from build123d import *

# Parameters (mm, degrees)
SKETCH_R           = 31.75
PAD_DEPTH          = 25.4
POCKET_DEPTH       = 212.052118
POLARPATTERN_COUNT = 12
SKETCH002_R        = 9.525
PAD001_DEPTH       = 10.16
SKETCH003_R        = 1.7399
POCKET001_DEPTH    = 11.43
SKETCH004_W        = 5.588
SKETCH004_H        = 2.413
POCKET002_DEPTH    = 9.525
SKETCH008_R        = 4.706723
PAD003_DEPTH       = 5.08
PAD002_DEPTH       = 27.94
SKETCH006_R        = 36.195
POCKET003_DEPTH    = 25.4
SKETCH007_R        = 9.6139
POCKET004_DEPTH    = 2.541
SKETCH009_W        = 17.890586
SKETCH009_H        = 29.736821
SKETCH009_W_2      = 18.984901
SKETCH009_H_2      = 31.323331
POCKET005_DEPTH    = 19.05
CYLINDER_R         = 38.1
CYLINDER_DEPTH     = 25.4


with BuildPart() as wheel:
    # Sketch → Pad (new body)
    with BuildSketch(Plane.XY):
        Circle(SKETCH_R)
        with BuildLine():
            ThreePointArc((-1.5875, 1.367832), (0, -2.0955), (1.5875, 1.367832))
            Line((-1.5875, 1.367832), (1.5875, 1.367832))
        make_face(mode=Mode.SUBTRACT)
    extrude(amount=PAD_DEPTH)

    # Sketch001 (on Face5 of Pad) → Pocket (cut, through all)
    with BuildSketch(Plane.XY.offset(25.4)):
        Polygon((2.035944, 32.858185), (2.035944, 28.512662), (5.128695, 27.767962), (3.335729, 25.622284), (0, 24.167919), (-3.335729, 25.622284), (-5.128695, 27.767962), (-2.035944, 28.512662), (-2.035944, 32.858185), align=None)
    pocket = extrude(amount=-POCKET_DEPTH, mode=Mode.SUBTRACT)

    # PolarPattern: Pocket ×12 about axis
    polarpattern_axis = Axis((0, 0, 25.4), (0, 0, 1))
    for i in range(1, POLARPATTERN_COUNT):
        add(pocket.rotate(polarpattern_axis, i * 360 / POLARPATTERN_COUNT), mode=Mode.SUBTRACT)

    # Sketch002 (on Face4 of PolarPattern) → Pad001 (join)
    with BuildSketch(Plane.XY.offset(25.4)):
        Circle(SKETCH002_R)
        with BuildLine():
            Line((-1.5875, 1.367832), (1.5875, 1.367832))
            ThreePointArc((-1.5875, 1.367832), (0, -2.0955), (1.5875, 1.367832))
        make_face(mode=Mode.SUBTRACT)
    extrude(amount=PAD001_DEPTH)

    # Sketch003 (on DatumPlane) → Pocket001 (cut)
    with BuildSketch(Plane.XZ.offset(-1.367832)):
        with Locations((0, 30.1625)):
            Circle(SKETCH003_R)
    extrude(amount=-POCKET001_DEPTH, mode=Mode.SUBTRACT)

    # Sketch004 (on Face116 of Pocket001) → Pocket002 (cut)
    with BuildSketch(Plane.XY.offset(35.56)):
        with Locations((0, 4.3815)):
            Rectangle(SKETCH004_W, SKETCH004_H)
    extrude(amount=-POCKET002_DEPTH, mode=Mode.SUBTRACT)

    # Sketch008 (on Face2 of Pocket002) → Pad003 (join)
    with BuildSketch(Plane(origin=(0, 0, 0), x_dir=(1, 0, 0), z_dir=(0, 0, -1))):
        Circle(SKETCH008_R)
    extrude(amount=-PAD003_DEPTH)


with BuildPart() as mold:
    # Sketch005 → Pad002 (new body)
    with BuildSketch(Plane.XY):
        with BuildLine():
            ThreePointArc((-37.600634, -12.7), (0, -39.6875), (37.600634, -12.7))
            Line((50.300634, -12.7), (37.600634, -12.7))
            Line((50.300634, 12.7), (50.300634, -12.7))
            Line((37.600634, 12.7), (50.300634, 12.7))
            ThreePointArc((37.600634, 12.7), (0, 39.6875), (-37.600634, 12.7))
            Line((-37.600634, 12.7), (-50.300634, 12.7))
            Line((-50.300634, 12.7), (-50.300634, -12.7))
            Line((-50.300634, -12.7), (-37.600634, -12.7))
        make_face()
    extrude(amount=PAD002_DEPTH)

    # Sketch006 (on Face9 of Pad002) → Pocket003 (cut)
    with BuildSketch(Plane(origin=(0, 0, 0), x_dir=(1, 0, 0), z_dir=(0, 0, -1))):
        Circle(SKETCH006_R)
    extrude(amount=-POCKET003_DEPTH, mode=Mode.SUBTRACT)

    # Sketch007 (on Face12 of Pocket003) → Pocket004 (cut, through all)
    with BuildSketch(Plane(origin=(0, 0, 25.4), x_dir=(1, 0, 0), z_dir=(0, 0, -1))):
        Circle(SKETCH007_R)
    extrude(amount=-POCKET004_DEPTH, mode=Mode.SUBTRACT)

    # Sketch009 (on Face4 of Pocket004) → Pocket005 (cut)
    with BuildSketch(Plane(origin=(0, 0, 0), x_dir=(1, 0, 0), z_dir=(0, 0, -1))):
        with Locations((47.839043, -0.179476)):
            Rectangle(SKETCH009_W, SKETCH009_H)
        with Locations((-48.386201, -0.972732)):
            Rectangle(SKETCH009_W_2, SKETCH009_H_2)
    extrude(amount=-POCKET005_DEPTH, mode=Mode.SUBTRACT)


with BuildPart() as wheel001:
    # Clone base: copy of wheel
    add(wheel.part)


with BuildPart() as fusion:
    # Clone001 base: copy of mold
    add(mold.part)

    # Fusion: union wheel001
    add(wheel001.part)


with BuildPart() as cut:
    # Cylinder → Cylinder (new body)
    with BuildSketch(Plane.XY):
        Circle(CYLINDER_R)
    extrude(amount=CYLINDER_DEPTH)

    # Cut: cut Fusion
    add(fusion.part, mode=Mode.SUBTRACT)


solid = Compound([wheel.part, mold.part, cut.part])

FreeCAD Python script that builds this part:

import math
import FreeCAD as App
import Part
import Sketcher

V = App.Vector
Q = App.Units.Quantity


def add_polygon(sketch, points):
    """Adds a closed chain of lines whose ends are joined by coincident constraints."""
    first, n = sketch.GeometryCount, len(points)
    for a, b in zip(points, points[1:] + points[:1]):
        sketch.addGeometry(Part.LineSegment(App.Vector(*a, 0), App.Vector(*b, 0)), False)
    for i in range(n):
        sketch.addConstraint(Sketcher.Constraint("Coincident", first + i, 2, first + (i + 1) % n, 1))

doc = App.newDocument("Part")
body = doc.addObject("PartDesign::Body", "Body")

# Sketch on XY plane
sketch1 = body.newObject("Sketcher::SketchObject", "Sketch")
sketch1.AttachmentSupport = (doc.getObject("XY_Plane"), [""])
sketch1.MapMode = "FlatFace"
sketch1.addGeometry([
    Part.Circle(V(0, 0, 0), V(0, 0, 1), 31.8),
    Part.ArcOfCircle(Part.Circle(V(0, 0, 0), V(0, 0, 1), 2.1), math.radians(139), math.radians(401)),
    Part.LineSegment(V(-1.6, 1.4, 0), V(1.6, 1.4, 0)),
], False)
sketch1.addConstraint([
    Sketcher.Constraint("Coincident", 1, 1, 2, 1),
    Sketcher.Constraint("Coincident", 2, 2, 1, 2),
    Sketcher.Constraint("Horizontal", 2),
    Sketcher.Constraint("Coincident", 0, 3, -1, 1),
    Sketcher.Constraint("Coincident", 1, 3, -1, 1),
    Sketcher.Constraint("Diameter", 0, Q("2.5 in")),
    Sketcher.Constraint("Radius", 1, Q("0.0825 in")),
    Sketcher.Constraint("DistanceX", 2, 1, 2, 2, Q("0.125 in")),
])
pad1 = body.newObject("PartDesign::Pad", "Pad")
pad1.Profile = sketch1
pad1.Length = Q("1 in")

# Sketch on XY plane
sketch2 = body.newObject("Sketcher::SketchObject", "Sketch001")
sketch2.AttachmentSupport = (doc.getObject("XY_Plane"), [""])
sketch2.MapMode = "FlatFace"
sketch2.AttachmentOffset = App.Placement(V(0, 0, 1 * 25.4), App.Rotation())
add_polygon(sketch2, [(2, 28.5), (2, 32.9), (-2, 32.9), (-2, 28.5), (-5.1, 27.8), (-3.3, 25.6), (0, 24.2), (3.3, 25.6), (5.1, 27.8)])  # lines 0-8
sketch2.addConstraint([
    Sketcher.Constraint("Vertical", 0),
    Sketcher.Constraint("Horizontal", 1),
    Sketcher.Constraint("Vertical", 2),
    Sketcher.Constraint("Symmetric", 4, 2, 6, 2, -2),
    Sketcher.Constraint("Symmetric", 3, 2, 7, 2, -2),
    Sketcher.Constraint("Symmetric", 2, 2, 8, 2, -2),
    Sketcher.Constraint("PointOnObject", 5, 2, -2),
    Sketcher.Constraint("DistanceX", 1, 2, 1, 1, 4.071888),
    Sketcher.Constraint("DistanceY", 3, 2, 2, 2, 0.7447),
    Sketcher.Constraint("DistanceY", 4, 2, 1, 2, 7.235901),
    Sketcher.Constraint("DistanceY", 0, 1, 0, 2, 4.345523),
    Sketcher.Constraint("DistanceY", -1, 1, 2, 2, 28.512662),
    Sketcher.Constraint("DistanceX", 4, 2, -1, 1, 3.335729),
    Sketcher.Constraint("DistanceY", -1, 1, 5, 2, 24.167919),
    Sketcher.Constraint("DistanceX", 3, 2, 2, 2, 3.092751),
])
pocket1 = body.newObject("PartDesign::Pocket", "Pocket")
pocket1.Profile = sketch2
pocket1.Type = "ThroughAll"
doc.recompute()

polarpattern = body.newObject("PartDesign::PolarPattern", "PolarPattern")
polarpattern.Originals = [pocket1]
polarpattern.Axis = (doc.getObject("Z_Axis"), [""])
polarpattern.Angle = 360
polarpattern.Occurrences = 12
body.Tip = polarpattern

# Sketch on XY plane
sketch3 = body.newObject("Sketcher::SketchObject", "Sketch002")
sketch3.AttachmentSupport = (doc.getObject("XY_Plane"), [""])
sketch3.MapMode = "FlatFace"
sketch3.AttachmentOffset = App.Placement(V(0, 0, 1 * 25.4), App.Rotation())
sketch3.addGeometry([
    Part.Circle(V(0, 0, 0), V(0, 0, 1), 9.5),
    Part.ArcOfCircle(Part.Circle(V(0, 0, 0), V(0, 0, 1), 2.1), math.radians(139), math.radians(401)),
    Part.LineSegment(V(-1.6, 1.4, 0), V(1.6, 1.4, 0)),
], False)
sketch3.addConstraint([
    Sketcher.Constraint("Coincident", 1, 1, 2, 1),
    Sketcher.Constraint("Coincident", 2, 2, 1, 2),
    Sketcher.Constraint("Horizontal", 2),
    Sketcher.Constraint("Coincident", 0, 3, -1, 1),
    Sketcher.Constraint("Coincident", 1, 3, -1, 1),
    Sketcher.Constraint("Diameter", 0, Q("0.75 in")),
    Sketcher.Constraint("Radius", 1, Q("0.0825 in")),
    Sketcher.Constraint("DistanceX", 2, 1, 2, 2, Q("0.125 in")),
])
pad2 = body.newObject("PartDesign::Pad", "Pad001")
pad2.Profile = sketch3
pad2.Length = Q("0.4 in")

# Sketch on XZ plane
sketch4 = body.newObject("Sketcher::SketchObject", "Sketch003")
sketch4.AttachmentSupport = (doc.getObject("XZ_Plane"), [""])
sketch4.MapMode = "FlatFace"
sketch4.AttachmentOffset = App.Placement(V(0, 0, -1.367832), App.Rotation())
sketch4.addGeometry(Part.Circle(V(0, 30.2, 0), V(0, 0, 1), 1.7), False)
sketch4.addConstraint([
    Sketcher.Constraint("PointOnObject", 0, 3, -2),
    Sketcher.Constraint("Diameter", 0, Q("0.137 in")),
    Sketcher.Constraint("DistanceY", -1, 1, 0, 3, Q("1.1875 in")),
])
pocket2 = body.newObject("PartDesign::Pocket", "Pocket001")
pocket2.Profile = sketch4
pocket2.Length = Q("0.45 in")

# Sketch on XY plane
sketch5 = body.newObject("Sketcher::SketchObject", "Sketch004")
sketch5.AttachmentSupport = (doc.getObject("XY_Plane"), [""])
sketch5.MapMode = "FlatFace"
sketch5.AttachmentOffset = App.Placement(V(0, 0, 1.4 * 25.4), App.Rotation())
add_polygon(sketch5, [(-2.8, 5.6), (-2.8, 3.2), (2.8, 3.2), (2.8, 5.6)])  # lines 0-3
sketch5.addConstraint([
    Sketcher.Constraint("Vertical", 0),
    Sketcher.Constraint("Horizontal", 1),
    Sketcher.Constraint("Vertical", 2),
    Sketcher.Constraint("Horizontal", 3),
    Sketcher.Constraint("DistanceX", 1, 1, 1, 2, Q("0.22 in")),
    Sketcher.Constraint("DistanceY", 0, 2, 0, 1, Q("0.095 in")),
    Sketcher.Constraint("DistanceX", 0, 2, -1, 1, Q("0.11 in")),
    Sketcher.Constraint("DistanceY", -1, 1, 2, 2, Q("0.22 in")),
])
pocket3 = body.newObject("PartDesign::Pocket", "Pocket002")
pocket3.Profile = sketch5
pocket3.Length = Q("0.375 in")

# Sketch on XY plane
sketch6 = body.newObject("Sketcher::SketchObject", "Sketch005")
sketch6.AttachmentSupport = (doc.getObject("XY_Plane"), [""])
sketch6.MapMode = "FlatFace"
sketch6.addGeometry(Part.Circle(V(0, 0, 0), V(0, 0, 1), 4.7), False)
sketch6.addConstraint([
    Sketcher.Constraint("Coincident", 0, 3, -1, 1),
    Sketcher.Constraint("Diameter", 0, 9.413446),
])
pad3 = body.newObject("PartDesign::Pad", "Pad002")
pad3.Profile = sketch6
pad3.Length = Q("0.2 in")
body2 = doc.addObject("PartDesign::Body", "Body001")

# Sketch on XY plane
sketch7 = body2.newObject("Sketcher::SketchObject", "Sketch006")
sketch7.AttachmentSupport = (doc.getObject("XY_Plane001"), [""])
sketch7.MapMode = "FlatFace"
sketch7.addGeometry([
    Part.ArcOfCircle(Part.Circle(V(0, 0, 0), V(0, 0, 1), 40), math.radians(-161), math.radians(-19)),  # 0
    Part.LineSegment(V(38, -13, 0), V(50, -13, 0)),  # 1
    Part.LineSegment(V(50, -13, 0), V(50, 13, 0)),  # 2
    Part.LineSegment(V(50, 13, 0), V(38, 13, 0)),  # 3
    Part.ArcOfCircle(Part.Circle(V(0, 0, 0), V(0, 0, 1), 40), math.radians(19), math.radians(161)),  # 4
    Part.LineSegment(V(-38, 13, 0), V(-50, 13, 0)),  # 5
    Part.LineSegment(V(-50, 13, 0), V(-50, -13, 0)),  # 6
    Part.LineSegment(V(-50, -13, 0), V(-38, -13, 0)),  # 7
], False)
sketch7.addConstraint([
    Sketcher.Constraint("Coincident", 0, 2, 1, 1),
    Sketcher.Constraint("Coincident", 1, 2, 2, 1),
    Sketcher.Constraint("Coincident", 2, 2, 3, 1),
    Sketcher.Constraint("Coincident", 3, 2, 4, 1),
    Sketcher.Constraint("Coincident", 4, 2, 5, 1),
    Sketcher.Constraint("Coincident", 5, 2, 6, 1),
    Sketcher.Constraint("Coincident", 6, 2, 7, 1),
    Sketcher.Constraint("Coincident", 7, 2, 0, 1),
    Sketcher.Constraint("Horizontal", 1),
    Sketcher.Constraint("Vertical", 2),
    Sketcher.Constraint("Horizontal", 3),
    Sketcher.Constraint("Horizontal", 5),
    Sketcher.Constraint("Vertical", 6),
    Sketcher.Constraint("Horizontal", 7),
    Sketcher.Constraint("Coincident", 0, 3, -1, 1),
    Sketcher.Constraint("Coincident", 4, 3, -1, 1),
    Sketcher.Constraint("Equal", 0, 4),
    Sketcher.Constraint("Symmetric", 1, 2, 5, 2, -1, 1),
    Sketcher.Constraint("Horizontal", 3, 2, 4, 2),
    Sketcher.Constraint("Horizontal", 1, 2, 6, 2),
    Sketcher.Constraint("DistanceY", 2, 1, 2, 2, Q("1 in")),
    Sketcher.Constraint("DistanceX", 1, 1, 1, 2, Q("0.5 in")),
    Sketcher.Constraint("Radius", 0, Q("1.5625 in")),
])
pad4 = body2.newObject("PartDesign::Pad", "Pad003")
pad4.Profile = sketch7
pad4.Length = Q("1.1 in")

# Sketch on XY plane
sketch8 = body2.newObject("Sketcher::SketchObject", "Sketch007")
sketch8.AttachmentSupport = (doc.getObject("XY_Plane001"), [""])
sketch8.MapMode = "FlatFace"
sketch8.addGeometry(Part.Circle(V(0, 0, 0), V(0, 0, 1), 36), False)
sketch8.addConstraint([
    Sketcher.Constraint("Coincident", 0, 3, -1, 1),
    Sketcher.Constraint("Diameter", 0, Q("2.85 in")),
])
pocket4 = body2.newObject("PartDesign::Pocket", "Pocket003")
pocket4.Profile = sketch8
pocket4.Length = Q("1 in")
pocket4.Reversed = True

# Sketch on XY plane
sketch9 = body2.newObject("Sketcher::SketchObject", "Sketch008")
sketch9.AttachmentSupport = (doc.getObject("XY_Plane001"), [""])
sketch9.MapMode = "FlatFace"
sketch9.AttachmentOffset = App.Placement(V(0, 0, 1 * 25.4), App.Rotation())
sketch9.addGeometry(Part.Circle(V(0, 0, 0), V(0, 0, 1), 10), False)
sketch9.addConstraint([
    Sketcher.Constraint("Coincident", 0, 3, -1, 1),
    Sketcher.Constraint("Diameter", 0, Q("0.757 in")),
])
pocket5 = body2.newObject("PartDesign::Pocket", "Pocket004")
pocket5.Profile = sketch9
pocket5.Type = "ThroughAll"
pocket5.Reversed = True

# Sketch on XY plane
sketch10 = body2.newObject("Sketcher::SketchObject", "Sketch009")
sketch10.AttachmentSupport = (doc.getObject("XY_Plane001"), [""])
sketch10.MapMode = "FlatFace"
add_polygon(sketch10, [(39, -15), (39, 15), (57, 15), (57, -15)])  # lines 0-3
add_polygon(sketch10, [(-58, -15), (-58, 17), (-39, 17), (-39, -15)])  # lines 4-7
sketch10.addConstraint([
    Sketcher.Constraint("Vertical", 0),
    Sketcher.Constraint("Horizontal", 1),
    Sketcher.Constraint("Vertical", 2),
    Sketcher.Constraint("Horizontal", 3),
    Sketcher.Constraint("Vertical", 4),
    Sketcher.Constraint("Horizontal", 5),
    Sketcher.Constraint("Vertical", 6),
    Sketcher.Constraint("Horizontal", 7),
    Sketcher.Constraint("Symmetric", 3, 2, 6, 2, -2),
    Sketcher.Constraint("DistanceX", -1, 1, 0, 2, Q("1.53125 in")),
    Sketcher.Constraint("DistanceX", 5, 1, 5, 2, 18.984901),
    Sketcher.Constraint("DistanceY", 0, 1, 0, 2, 29.736821),
    Sketcher.Constraint("DistanceY", 4, 1, 4, 2, 31.323331),
    Sketcher.Constraint("DistanceX", 1, 1, 1, 2, 17.890586),
    Sketcher.Constraint("DistanceY", -1, 1, 0, 2, 15.047887),
])
pocket6 = body2.newObject("PartDesign::Pocket", "Pocket005")
pocket6.Profile = sketch10
pocket6.Length = Q("0.75 in")
pocket6.Reversed = True
body3 = doc.addObject("PartDesign::Body", "Body002")
doc.recompute()

body3.BaseFeature = body
doc.recompute()
body4 = doc.addObject("PartDesign::Body", "Body003")
doc.recompute()

body4.BaseFeature = body2
doc.recompute()

boolean = body4.newObject("PartDesign::Boolean", "Boolean")
boolean.Type = "Fuse"
boolean.addObjects([body3])
body5 = doc.addObject("PartDesign::Body", "Body004")
body5.AllowCompound = True

# Sketch on XY plane
sketch11 = body5.newObject("Sketcher::SketchObject", "Sketch010")
sketch11.AttachmentSupport = (doc.getObject("XY_Plane004"), [""])
sketch11.MapMode = "FlatFace"
sketch11.addGeometry(Part.Circle(V(0, 0, 0), V(0, 0, 1), 38), False)
sketch11.addConstraint([
    Sketcher.Constraint("Coincident", 0, 3, -1, 1),
    Sketcher.Constraint("Diameter", 0, Q("3 in")),
])
pad5 = body5.newObject("PartDesign::Pad", "Pad004")
pad5.Profile = sketch11
pad5.Length = Q("1 in")
doc.recompute()

boolean2 = body5.newObject("PartDesign::Boolean", "Boolean001")
boolean2.Type = "Cut"
boolean2.addObjects([body4])

doc.recompute()
